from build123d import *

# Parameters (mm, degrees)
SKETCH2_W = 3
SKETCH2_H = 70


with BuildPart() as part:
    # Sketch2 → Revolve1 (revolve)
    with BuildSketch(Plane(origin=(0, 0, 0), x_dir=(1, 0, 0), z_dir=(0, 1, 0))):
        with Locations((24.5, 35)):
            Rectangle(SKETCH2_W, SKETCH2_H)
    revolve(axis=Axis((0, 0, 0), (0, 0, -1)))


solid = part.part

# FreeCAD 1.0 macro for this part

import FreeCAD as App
import Part
import Sketcher

V = App.Vector
Q = App.Units.Quantity

doc = App.newDocument("Part")
body = doc.addObject("PartDesign::Body", "Body")

sketch1 = doc.addObject("Sketcher::SketchObject", "Sketch")
body.addObject(sketch1)
sketch1.AttachmentSupport = (doc.XZ_Plane, [""])
sketch1.MapMode = "FlatFace"
sketch1.addGeometry([
    Part.LineSegment(V(23, -70, 0), V(23, 0, 0)),
    Part.LineSegment(V(23, 0, 0), V(26, 0, 0)),
    Part.LineSegment(V(26, 0, 0), V(26, -70, 0)),
    Part.LineSegment(V(26, -70, 0), V(23, -70, 0)),
], False)
sketch1.addConstraint([
    Sketcher.Constraint("Coincident", 0, 2, 1, 1),
    Sketcher.Constraint("Coincident", 1, 2, 2, 1),
    Sketcher.Constraint("Coincident", 2, 2, 3, 1),
    Sketcher.Constraint("Coincident", 3, 2, 0, 1),
    Sketcher.Constraint("Vertical", 0),
    Sketcher.Constraint("Horizontal", 1),
    Sketcher.Constraint("Vertical", 2),
    Sketcher.Constraint("Horizontal", 3),
    Sketcher.Constraint("PointOnObject", 0, 2, -1),
    Sketcher.Constraint("DistanceX", 1, 1, 1, 2, Q("3 mm")),
    Sketcher.Constraint("DistanceY", 0, 1, 0, 2, Q("70 mm")),
    Sketcher.Constraint("DistanceX", -1, 1, 0, 2, Q("23 mm")),
])
revolution = doc.addObject("PartDesign::Revolution", "Revolution")
body.addObject(revolution)
revolution.Profile = sketch1
revolution.ReferenceAxis = (sketch1, ["V_Axis"])
revolution.Angle = 360

doc.recompute()
